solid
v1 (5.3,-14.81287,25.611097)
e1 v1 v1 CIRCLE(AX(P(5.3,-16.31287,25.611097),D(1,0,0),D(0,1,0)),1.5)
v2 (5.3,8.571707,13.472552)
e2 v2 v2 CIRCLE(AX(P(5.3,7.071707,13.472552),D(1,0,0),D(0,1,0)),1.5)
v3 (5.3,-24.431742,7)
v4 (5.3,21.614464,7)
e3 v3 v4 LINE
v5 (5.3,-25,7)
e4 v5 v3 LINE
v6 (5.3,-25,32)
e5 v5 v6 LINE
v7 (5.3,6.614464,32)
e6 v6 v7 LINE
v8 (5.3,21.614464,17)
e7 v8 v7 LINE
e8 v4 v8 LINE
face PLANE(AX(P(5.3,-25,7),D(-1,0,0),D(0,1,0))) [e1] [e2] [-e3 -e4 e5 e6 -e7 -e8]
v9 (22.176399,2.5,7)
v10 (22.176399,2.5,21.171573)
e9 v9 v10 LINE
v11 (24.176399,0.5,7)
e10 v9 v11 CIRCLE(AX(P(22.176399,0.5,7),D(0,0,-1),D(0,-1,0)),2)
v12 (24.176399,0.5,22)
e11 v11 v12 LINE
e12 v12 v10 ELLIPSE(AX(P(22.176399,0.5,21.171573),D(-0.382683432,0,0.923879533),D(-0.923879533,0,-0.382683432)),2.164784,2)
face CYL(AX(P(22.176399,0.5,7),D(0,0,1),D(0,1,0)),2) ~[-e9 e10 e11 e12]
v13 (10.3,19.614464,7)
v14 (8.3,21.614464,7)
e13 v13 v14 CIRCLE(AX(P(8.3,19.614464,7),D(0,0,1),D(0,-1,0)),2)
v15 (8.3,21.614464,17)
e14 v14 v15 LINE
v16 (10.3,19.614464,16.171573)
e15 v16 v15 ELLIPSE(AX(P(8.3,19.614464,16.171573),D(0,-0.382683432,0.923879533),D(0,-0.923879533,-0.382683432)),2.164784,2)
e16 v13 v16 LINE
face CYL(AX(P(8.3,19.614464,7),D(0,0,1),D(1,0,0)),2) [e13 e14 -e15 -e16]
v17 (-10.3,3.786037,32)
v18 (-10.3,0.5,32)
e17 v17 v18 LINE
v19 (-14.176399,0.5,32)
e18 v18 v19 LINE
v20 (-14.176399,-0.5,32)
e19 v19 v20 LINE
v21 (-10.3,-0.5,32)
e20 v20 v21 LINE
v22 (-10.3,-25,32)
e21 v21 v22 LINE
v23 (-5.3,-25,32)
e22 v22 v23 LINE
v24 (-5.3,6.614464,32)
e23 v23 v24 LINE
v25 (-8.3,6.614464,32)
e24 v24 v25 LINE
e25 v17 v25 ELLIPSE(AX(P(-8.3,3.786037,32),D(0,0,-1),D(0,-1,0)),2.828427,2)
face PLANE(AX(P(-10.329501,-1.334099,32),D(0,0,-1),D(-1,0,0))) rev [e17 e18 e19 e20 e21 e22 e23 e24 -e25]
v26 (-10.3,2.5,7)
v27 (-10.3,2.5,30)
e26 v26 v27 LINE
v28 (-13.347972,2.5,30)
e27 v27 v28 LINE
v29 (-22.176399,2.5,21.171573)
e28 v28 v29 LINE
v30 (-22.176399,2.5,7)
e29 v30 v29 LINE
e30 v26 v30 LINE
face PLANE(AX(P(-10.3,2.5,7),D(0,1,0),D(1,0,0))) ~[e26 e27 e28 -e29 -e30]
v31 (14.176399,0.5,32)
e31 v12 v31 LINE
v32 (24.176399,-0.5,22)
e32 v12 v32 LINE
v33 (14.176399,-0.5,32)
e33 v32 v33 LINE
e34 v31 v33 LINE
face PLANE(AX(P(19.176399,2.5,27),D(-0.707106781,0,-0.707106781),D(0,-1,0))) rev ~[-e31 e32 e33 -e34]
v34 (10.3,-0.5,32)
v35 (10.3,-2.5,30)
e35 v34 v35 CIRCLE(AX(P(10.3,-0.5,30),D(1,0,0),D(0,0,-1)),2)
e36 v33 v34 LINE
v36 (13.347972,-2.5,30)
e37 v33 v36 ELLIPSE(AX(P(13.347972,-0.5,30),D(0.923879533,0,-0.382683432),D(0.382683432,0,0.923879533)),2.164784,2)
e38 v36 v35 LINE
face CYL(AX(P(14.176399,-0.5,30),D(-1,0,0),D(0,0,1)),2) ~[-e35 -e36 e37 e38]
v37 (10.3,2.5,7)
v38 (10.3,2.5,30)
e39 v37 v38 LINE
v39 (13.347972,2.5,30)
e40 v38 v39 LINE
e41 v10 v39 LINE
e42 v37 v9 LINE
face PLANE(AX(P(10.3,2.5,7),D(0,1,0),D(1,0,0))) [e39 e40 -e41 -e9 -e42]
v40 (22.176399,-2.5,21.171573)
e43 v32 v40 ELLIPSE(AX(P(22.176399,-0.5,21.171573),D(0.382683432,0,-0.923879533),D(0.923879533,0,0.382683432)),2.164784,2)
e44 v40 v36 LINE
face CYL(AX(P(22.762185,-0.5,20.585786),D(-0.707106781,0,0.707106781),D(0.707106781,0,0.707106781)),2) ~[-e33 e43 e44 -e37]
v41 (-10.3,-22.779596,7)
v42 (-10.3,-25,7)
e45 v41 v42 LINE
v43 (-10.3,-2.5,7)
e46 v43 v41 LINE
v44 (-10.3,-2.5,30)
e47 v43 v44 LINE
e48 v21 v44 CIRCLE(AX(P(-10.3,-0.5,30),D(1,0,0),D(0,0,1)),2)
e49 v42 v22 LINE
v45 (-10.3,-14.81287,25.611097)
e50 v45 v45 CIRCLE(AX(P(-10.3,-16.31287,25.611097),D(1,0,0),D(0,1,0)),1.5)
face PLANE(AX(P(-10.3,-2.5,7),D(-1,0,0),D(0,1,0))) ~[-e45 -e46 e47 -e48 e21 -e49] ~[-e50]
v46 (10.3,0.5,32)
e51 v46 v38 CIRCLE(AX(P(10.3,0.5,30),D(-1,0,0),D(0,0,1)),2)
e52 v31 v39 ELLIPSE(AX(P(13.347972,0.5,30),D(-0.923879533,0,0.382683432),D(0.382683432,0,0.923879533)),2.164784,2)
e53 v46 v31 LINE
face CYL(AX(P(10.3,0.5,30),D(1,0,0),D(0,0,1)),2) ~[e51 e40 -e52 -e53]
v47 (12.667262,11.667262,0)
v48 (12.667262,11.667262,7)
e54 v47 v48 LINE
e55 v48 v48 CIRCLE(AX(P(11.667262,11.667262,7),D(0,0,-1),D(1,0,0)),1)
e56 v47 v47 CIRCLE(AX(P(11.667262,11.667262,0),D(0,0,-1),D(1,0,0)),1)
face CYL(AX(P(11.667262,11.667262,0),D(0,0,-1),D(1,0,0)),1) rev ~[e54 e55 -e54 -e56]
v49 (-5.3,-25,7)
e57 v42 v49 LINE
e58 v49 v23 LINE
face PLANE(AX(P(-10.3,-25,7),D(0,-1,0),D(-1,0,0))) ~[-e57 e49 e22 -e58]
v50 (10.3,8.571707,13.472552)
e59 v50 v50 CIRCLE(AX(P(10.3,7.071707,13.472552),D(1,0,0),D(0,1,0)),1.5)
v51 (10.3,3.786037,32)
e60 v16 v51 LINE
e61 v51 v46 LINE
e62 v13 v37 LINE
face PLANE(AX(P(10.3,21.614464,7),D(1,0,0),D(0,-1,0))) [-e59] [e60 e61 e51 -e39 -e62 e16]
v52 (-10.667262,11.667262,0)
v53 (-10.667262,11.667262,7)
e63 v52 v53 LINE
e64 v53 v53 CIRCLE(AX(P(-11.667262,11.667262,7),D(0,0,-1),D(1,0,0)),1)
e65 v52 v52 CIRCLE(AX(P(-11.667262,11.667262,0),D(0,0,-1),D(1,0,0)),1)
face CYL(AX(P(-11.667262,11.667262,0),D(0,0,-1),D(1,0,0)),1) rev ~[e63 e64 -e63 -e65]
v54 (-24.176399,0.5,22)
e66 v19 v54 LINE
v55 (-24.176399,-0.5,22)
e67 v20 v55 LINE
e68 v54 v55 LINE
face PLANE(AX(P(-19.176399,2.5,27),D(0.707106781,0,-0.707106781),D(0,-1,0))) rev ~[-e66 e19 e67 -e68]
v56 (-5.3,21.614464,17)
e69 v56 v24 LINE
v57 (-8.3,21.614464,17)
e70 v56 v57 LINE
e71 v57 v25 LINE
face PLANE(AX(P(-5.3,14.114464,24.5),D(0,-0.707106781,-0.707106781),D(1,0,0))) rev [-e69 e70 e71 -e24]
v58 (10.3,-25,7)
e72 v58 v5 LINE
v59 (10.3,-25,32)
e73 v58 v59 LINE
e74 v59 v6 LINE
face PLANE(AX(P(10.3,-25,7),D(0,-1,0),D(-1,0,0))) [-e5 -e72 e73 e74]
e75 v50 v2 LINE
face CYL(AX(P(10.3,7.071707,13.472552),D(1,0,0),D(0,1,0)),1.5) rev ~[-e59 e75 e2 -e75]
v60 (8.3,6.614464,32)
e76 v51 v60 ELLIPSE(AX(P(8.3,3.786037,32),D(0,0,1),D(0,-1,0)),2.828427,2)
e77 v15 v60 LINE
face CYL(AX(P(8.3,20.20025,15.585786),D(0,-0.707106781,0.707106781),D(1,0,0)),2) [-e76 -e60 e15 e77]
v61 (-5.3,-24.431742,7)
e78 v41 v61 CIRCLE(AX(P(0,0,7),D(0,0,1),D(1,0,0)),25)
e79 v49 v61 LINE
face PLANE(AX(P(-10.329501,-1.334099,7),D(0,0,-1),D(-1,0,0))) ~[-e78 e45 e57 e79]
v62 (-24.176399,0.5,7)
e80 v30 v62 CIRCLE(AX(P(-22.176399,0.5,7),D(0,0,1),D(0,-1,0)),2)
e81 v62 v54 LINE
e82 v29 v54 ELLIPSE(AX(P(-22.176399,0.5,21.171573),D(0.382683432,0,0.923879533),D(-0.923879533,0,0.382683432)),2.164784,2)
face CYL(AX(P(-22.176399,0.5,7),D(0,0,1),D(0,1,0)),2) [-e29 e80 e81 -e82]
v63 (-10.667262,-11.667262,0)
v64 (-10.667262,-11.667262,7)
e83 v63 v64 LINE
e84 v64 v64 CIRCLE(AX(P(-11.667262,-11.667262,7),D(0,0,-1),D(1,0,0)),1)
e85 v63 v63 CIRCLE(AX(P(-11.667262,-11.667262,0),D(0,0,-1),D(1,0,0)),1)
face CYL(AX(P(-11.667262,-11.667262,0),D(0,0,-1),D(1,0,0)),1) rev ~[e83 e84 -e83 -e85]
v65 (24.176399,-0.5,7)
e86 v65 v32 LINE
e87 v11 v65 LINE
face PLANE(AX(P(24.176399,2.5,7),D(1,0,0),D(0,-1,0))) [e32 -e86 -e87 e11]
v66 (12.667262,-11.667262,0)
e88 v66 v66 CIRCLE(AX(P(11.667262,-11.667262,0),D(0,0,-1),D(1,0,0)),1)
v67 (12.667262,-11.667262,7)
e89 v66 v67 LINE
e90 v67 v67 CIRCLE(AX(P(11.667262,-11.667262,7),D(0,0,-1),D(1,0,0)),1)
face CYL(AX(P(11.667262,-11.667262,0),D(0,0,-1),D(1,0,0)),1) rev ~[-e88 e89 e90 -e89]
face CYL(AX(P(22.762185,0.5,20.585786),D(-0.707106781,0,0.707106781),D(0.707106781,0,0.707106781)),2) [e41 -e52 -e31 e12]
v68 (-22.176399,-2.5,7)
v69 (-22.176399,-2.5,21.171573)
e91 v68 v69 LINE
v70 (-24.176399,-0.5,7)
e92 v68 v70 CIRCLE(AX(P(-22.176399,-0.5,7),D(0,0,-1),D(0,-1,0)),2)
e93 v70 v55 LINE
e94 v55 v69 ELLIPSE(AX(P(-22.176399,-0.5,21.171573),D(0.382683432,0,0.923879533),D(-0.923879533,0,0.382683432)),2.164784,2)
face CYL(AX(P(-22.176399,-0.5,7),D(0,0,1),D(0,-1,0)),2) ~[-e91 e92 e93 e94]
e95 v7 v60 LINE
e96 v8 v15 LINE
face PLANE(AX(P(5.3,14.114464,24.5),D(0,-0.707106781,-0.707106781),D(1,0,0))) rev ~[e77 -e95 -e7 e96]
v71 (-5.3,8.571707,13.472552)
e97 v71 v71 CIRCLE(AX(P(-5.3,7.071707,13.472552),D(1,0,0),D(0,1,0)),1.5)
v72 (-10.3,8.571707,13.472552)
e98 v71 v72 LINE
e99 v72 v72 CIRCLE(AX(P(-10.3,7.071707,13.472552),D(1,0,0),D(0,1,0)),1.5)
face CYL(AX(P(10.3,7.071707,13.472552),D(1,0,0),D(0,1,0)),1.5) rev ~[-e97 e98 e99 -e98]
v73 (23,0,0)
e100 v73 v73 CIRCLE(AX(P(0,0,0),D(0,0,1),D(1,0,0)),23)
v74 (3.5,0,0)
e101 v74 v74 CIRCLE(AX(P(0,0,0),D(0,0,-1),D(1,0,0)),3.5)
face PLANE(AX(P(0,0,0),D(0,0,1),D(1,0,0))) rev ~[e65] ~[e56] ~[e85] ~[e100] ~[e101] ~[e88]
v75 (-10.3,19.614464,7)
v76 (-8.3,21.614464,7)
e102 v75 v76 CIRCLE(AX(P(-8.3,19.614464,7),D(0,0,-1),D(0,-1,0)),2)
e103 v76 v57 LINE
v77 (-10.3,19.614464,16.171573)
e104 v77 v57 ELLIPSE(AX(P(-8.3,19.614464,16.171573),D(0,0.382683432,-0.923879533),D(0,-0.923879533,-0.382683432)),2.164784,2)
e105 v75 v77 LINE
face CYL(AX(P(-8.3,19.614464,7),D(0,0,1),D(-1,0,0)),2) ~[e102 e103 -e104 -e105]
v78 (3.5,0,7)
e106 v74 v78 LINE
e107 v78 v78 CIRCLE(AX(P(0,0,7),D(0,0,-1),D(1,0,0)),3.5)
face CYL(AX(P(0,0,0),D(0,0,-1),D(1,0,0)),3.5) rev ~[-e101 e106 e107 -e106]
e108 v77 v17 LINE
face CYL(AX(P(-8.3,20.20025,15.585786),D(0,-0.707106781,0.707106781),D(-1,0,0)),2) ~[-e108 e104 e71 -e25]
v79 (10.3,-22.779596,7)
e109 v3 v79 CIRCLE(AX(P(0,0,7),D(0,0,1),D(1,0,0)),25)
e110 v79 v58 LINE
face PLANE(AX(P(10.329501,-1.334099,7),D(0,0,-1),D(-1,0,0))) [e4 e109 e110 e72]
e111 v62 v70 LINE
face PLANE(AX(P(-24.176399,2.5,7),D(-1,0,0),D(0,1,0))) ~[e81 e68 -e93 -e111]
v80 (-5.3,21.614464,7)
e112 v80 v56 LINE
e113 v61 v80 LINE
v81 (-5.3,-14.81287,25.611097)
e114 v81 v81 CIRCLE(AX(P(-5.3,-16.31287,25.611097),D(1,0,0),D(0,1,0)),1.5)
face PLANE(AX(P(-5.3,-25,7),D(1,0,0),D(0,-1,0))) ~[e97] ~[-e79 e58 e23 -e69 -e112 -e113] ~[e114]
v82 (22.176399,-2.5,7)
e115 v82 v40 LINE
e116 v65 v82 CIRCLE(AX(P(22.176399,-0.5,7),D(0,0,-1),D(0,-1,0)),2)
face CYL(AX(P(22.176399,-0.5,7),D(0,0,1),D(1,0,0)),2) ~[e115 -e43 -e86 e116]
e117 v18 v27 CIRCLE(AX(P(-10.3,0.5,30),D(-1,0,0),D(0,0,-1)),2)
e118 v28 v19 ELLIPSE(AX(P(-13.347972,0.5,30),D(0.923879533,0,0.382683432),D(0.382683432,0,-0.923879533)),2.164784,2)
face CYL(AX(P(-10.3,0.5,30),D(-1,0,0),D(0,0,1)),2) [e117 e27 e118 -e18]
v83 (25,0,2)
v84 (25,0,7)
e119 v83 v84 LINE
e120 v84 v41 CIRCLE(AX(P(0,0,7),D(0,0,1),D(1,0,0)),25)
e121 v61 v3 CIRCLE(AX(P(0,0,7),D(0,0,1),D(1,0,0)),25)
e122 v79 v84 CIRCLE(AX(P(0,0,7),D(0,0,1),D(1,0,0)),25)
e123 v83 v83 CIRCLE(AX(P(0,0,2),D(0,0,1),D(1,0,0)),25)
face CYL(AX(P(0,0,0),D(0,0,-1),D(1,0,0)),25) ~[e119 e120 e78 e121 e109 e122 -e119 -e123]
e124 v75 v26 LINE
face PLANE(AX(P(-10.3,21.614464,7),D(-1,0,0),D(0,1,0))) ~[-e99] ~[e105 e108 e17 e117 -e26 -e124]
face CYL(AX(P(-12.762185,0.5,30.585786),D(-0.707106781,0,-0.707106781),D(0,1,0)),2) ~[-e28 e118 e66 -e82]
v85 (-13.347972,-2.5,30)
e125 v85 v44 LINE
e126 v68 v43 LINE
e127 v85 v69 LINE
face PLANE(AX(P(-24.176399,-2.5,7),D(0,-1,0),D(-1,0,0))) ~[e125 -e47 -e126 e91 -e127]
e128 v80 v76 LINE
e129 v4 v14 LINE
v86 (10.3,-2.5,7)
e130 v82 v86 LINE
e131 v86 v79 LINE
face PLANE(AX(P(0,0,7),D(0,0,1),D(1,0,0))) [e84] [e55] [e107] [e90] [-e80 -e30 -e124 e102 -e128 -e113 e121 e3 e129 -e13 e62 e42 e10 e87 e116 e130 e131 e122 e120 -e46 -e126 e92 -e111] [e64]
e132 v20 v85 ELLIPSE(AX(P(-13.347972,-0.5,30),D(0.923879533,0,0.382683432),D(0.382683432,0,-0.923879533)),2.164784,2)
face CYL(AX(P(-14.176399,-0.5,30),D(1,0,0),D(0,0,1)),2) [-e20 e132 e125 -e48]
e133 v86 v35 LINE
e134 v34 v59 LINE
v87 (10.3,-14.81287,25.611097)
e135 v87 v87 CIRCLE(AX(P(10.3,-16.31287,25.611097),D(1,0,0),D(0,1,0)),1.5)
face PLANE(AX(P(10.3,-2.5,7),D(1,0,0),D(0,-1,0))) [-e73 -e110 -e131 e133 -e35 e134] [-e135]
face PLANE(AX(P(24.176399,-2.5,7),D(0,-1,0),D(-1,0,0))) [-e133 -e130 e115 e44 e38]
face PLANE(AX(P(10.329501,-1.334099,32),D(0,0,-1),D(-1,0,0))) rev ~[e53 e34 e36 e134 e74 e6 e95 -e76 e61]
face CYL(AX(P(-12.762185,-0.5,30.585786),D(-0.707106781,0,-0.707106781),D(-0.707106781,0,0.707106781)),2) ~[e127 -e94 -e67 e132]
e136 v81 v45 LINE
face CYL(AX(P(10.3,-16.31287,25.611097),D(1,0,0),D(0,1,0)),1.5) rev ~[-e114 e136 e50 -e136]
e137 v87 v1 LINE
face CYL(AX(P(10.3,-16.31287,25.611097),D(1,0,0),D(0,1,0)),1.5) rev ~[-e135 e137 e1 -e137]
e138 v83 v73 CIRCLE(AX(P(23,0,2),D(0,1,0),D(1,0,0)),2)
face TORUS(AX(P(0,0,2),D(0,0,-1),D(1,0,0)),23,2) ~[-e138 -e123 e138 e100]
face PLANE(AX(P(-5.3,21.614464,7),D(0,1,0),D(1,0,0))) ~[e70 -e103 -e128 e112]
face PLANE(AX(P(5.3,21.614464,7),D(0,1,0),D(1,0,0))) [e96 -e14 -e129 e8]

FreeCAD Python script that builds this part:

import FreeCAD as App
import Part
import Sketcher
from FreeCAD import Vector


def edges_at(feature, points):
    """Names of the edges that pass closest to the given points."""
    edges = feature.Shape.Edges
    near = lambda p: min(range(len(edges)), key=lambda i: edges[i].distToShape(Part.Vertex(*p))[0])
    return sorted({f"Edge{near(p) + 1}" for p in points})


def add_polygon(sketch, points):
    """Adds a closed chain of lines whose ends are joined by coincident constraints."""
    first, n = sketch.GeometryCount, len(points)
    for a, b in zip(points, points[1:] + points[:1]):
        sketch.addGeometry(Part.LineSegment(App.Vector(*a, 0), App.Vector(*b, 0)), False)
    for i in range(n):
        sketch.addConstraint(Sketcher.Constraint("Coincident", first + i, 2, first + (i + 1) % n, 1))

doc = App.newDocument("Part")
params = doc.addObject("Spreadsheet::Sheet", "Params")
for row, (alias, value) in enumerate([
    ("sketch1_diameter", "50 mm"),
    ("pad1_length", "7 mm"),
    ("sketch2_width", "5 mm"),
    ("sketch2_height", "22.5 mm"),
    ("pad2_length", "25 mm"),
    ("chamfer_size", "15 mm"),
    ("chamfer2_size", "10 mm"),
    ("fillet_radius", "2 mm"),
    ("fillet2_radius", "2 mm"),
    ("fillet3_radius", "2 mm"),
    ("sketch3_diameter", "3 mm"),
    ("fillet4_radius", "2 mm"),
    ("sketch4_diameter", "2 mm"),
    ("sketch5_diameter", "7 mm"),
], start=1):
    params.set(f"A{row}", alias)
    params.set(f"B{row}", "=" + value)
    params.setAlias(f"B{row}", alias)

body = doc.addObject("PartDesign::Body", "Body")

sketch1 = doc.addObject("Sketcher::SketchObject", "Sketch")
body.addObject(sketch1)
sketch1.AttachmentSupport = (doc.XY_Plane, [""])
sketch1.MapMode = "FlatFace"
sketch1.addGeometry(Part.Circle(Vector(0, 0, 0), Vector(0, 0, 1), 25), False)
sketch1.addConstraint([
    Sketcher.Constraint("Coincident", 0, 3, -1, 1),
    Sketcher.Constraint("Diameter", 0, 50.0),
])
sketch1.setExpression("Constraints[1]", "Params.sketch1_diameter")
pad1 = doc.addObject("PartDesign::Pad", "Pad")
body.addObject(pad1)
pad1.Profile = sketch1
pad1.setExpression("Length", "Params.pad1_length")

sketch2 = doc.addObject("Sketcher::SketchObject", "Sketch001")
body.addObject(sketch2)
sketch2.AttachmentSupport = (doc.XY_Plane, [""])
sketch2.MapMode = "FlatFace"
sketch2.AttachmentOffset = App.Placement(Vector(0, 0, 7), App.Rotation())
add_polygon(sketch2, [(10, 22), (5, 22), (5, -25), (10, -25), (10, -2), (24, -2), (24, 2), (10, 2)])
sketch2.addConstraint([
    Sketcher.Constraint("Horizontal", 0),
    Sketcher.Constraint("Vertical", 1),
    Sketcher.Constraint("Horizontal", 2),
    Sketcher.Constraint("Vertical", 3),
    Sketcher.Constraint("Horizontal", 4),
    Sketcher.Constraint("Vertical", 5),
    Sketcher.Constraint("Horizontal", 6),
    Sketcher.Constraint("Vertical", 7),
    Sketcher.Constraint("Symmetric", 3, 2, 6, 2, -1),
    Sketcher.Constraint("Equal", 2, 5),
    Sketcher.Constraint("DistanceX", 0, 2, 0, 1, 5.0),
    Sketcher.Constraint("DistanceY", 3, 1, 3, 2, 22.5),
    Sketcher.Constraint("DistanceX", -1, 1, 0, 2, 5.3),
    Sketcher.Constraint("DistanceX", 4, 1, 4, 2, 13.876399),
    Sketcher.Constraint("DistanceY", 1, 2, 1, 1, 46.614464),
])
sketch2.setExpression("Constraints[18]", "Params.sketch2_width")
sketch2.setExpression("Constraints[19]", "Params.sketch2_height")
pad2 = doc.addObject("PartDesign::Pad", "Pad001")
body.addObject(pad2)
pad2.Profile = sketch2
pad2.setExpression("Length", "Params.pad2_length")
doc.recompute()

mirrored = doc.addObject("PartDesign::Mirrored", "Mirrored")
body.addObject(mirrored)
mirrored.Originals = [pad2]
mirrored.MirrorPlane = (doc.YZ_Plane, [""])
body.Tip = mirrored
doc.recompute()

chamfer = doc.addObject("PartDesign::Chamfer", "Chamfer")
body.addObject(chamfer)
chamfer.Base = (mirrored, edges_at(mirrored, [(7.8, 21.614, 32), (-7.8, 21.614, 32)]))
chamfer.setExpression("Size", "Params.chamfer_size")
doc.recompute()

chamfer2 = doc.addObject("PartDesign::Chamfer", "Chamfer001")
body.addObject(chamfer2)
chamfer2.Base = (chamfer, edges_at(chamfer, [(24.176, 0, 32), (-24.176, 0, 32)]))
chamfer2.setExpression("Size", "Params.chamfer2_size")
doc.recompute()

fillet = doc.addObject("PartDesign::Fillet", "Fillet")
body.addObject(fillet)
fillet.Base = (chamfer2, edges_at(chamfer2, [
    (10.3, 14.114, 24.5),
    (10.3, 21.614, 12),
    (-10.3, 14.114, 24.5),
    (-10.3, 21.614, 12),
]))
fillet.setExpression("Radius", "Params.fillet_radius")
doc.recompute()

fillet2 = doc.addObject("PartDesign::Fillet", "Fillet001")
body.addObject(fillet2)
fillet2.Base = (fillet, edges_at(fillet, [
    (-19.176, 2.5, 27),
    (-24.176, 2.5, 14.5),
    (-19.176, -2.5, 27),
    (-24.176, -2.5, 14.5),
    (-12.238, 2.5, 32),
    (-12.238, -2.5, 32),
]))
fillet2.setExpression("Radius", "Params.fillet2_radius")
doc.recompute()

fillet3 = doc.addObject("PartDesign::Fillet", "Fillet002")
body.addObject(fillet3)
fillet3.Base = (fillet2, edges_at(fillet2, [
    (12.238, 2.5, 32),
    (19.176, 2.5, 27),
    (24.176, 2.5, 14.5),
    (24.176, -2.5, 14.5),
    (19.176, -2.5, 27),
    (12.238, -2.5, 32),
]))
fillet3.setExpression("Radius", "Params.fillet3_radius")

sketch3 = doc.addObject("Sketcher::SketchObject", "Sketch002")
body.addObject(sketch3)
sketch3.AttachmentSupport = (doc.YZ_Plane, [""])
sketch3.MapMode = "FlatFace"
sketch3.AttachmentOffset = App.Placement(Vector(0, 0, 10.3), App.Rotation())
sketch3.addGeometry([
    Part.Circle(Vector(7.1, 13.5, 0), Vector(0, 0, 1), 1.5),
    Part.Circle(Vector(-16.3, 25.6, 0), Vector(0, 0, 1), 1.5),
], False)
sketch3.addConstraint([
    Sketcher.Constraint("Equal", 0, 1),
    Sketcher.Constraint("Diameter", 0, 3.0),
    Sketcher.Constraint("DistanceX", 1, 3, -1, 1, 16.31287),
    Sketcher.Constraint("DistanceX", -1, 1, 0, 3, 7.071707),
    Sketcher.Constraint("DistanceY", -1, 1, 0, 3, 13.472552),
    Sketcher.Constraint("DistanceY", -1, 1, 1, 3, 25.611097),
])
sketch3.setExpression("Constraints[1]", "Params.sketch3_diameter")
pocket1 = doc.addObject("PartDesign::Pocket", "Pocket")
body.addObject(pocket1)
pocket1.Profile = sketch3
pocket1.Type = "ThroughAll"
doc.recompute()

fillet4 = doc.addObject("PartDesign::Fillet", "Fillet003")
body.addObject(fillet4)
fillet4.Base = (pocket1, edges_at(pocket1, [(-25, 0, 0)]))
fillet4.setExpression("Radius", "Params.fillet4_radius")

sketch4 = doc.addObject("Sketcher::SketchObject", "Sketch003")
body.addObject(sketch4)
sketch4.AttachmentSupport = (doc.XY_Plane, [""])
sketch4.MapMode = "FlatFace"
sketch4.addGeometry([
    Part.Circle(Vector(11.7, -11.7, 0), Vector(0, 0, 1), 1),
    Part.Circle(Vector(-11.7, -11.7, 0), Vector(0, 0, 1), 1),
    Part.Circle(Vector(11.7, 11.7, 0), Vector(0, 0, 1), 1),
    Part.Circle(Vector(-11.7, 11.7, 0), Vector(0, 0, 1), 1),
], False)
sketch4.addConstraint([
    Sketcher.Constraint("Equal", 0, 1),
    Sketcher.Constraint("Equal", 1, 2),
    Sketcher.Constraint("Equal", 2, 3),
    Sketcher.Constraint("Symmetric", 1, 3, 2, 3, -1, 1),
    Sketcher.Constraint("Symmetric", 0, 3, 3, 3, -1, 1),
    Sketcher.Constraint("Symmetric", 0, 3, 1, 3, -2),
    Sketcher.Constraint("Diameter", 0, 2.0),
    Sketcher.Constraint("DistanceX", -1, 1, 0, 3, 11.667262),
    Sketcher.Constraint("DistanceY", 0, 3, -1, 1, 11.667262),
])
sketch4.setExpression("Constraints[6]", "Params.sketch4_diameter")
pocket2 = doc.addObject("PartDesign::Pocket", "Pocket001")
body.addObject(pocket2)
pocket2.Profile = sketch4
pocket2.Type = "ThroughAll"
pocket2.Reversed = True

sketch5 = doc.addObject("Sketcher::SketchObject", "Sketch004")
body.addObject(sketch5)
sketch5.AttachmentSupport = (doc.XY_Plane, [""])
sketch5.MapMode = "FlatFace"
sketch5.addGeometry(Part.Circle(Vector(0, 0, 0), Vector(0, 0, 1), 3.5), False)
sketch5.addConstraint([
    Sketcher.Constraint("Coincident", 0, 3, -1, 1),
    Sketcher.Constraint("Diameter", 0, 7.0),
])
sketch5.setExpression("Constraints[1]", "Params.sketch5_diameter")
pocket3 = doc.addObject("PartDesign::Pocket", "Pocket002")
body.addObject(pocket3)
pocket3.Profile = sketch5
pocket3.Type = "ThroughAll"
pocket3.Reversed = True

doc.recompute()
